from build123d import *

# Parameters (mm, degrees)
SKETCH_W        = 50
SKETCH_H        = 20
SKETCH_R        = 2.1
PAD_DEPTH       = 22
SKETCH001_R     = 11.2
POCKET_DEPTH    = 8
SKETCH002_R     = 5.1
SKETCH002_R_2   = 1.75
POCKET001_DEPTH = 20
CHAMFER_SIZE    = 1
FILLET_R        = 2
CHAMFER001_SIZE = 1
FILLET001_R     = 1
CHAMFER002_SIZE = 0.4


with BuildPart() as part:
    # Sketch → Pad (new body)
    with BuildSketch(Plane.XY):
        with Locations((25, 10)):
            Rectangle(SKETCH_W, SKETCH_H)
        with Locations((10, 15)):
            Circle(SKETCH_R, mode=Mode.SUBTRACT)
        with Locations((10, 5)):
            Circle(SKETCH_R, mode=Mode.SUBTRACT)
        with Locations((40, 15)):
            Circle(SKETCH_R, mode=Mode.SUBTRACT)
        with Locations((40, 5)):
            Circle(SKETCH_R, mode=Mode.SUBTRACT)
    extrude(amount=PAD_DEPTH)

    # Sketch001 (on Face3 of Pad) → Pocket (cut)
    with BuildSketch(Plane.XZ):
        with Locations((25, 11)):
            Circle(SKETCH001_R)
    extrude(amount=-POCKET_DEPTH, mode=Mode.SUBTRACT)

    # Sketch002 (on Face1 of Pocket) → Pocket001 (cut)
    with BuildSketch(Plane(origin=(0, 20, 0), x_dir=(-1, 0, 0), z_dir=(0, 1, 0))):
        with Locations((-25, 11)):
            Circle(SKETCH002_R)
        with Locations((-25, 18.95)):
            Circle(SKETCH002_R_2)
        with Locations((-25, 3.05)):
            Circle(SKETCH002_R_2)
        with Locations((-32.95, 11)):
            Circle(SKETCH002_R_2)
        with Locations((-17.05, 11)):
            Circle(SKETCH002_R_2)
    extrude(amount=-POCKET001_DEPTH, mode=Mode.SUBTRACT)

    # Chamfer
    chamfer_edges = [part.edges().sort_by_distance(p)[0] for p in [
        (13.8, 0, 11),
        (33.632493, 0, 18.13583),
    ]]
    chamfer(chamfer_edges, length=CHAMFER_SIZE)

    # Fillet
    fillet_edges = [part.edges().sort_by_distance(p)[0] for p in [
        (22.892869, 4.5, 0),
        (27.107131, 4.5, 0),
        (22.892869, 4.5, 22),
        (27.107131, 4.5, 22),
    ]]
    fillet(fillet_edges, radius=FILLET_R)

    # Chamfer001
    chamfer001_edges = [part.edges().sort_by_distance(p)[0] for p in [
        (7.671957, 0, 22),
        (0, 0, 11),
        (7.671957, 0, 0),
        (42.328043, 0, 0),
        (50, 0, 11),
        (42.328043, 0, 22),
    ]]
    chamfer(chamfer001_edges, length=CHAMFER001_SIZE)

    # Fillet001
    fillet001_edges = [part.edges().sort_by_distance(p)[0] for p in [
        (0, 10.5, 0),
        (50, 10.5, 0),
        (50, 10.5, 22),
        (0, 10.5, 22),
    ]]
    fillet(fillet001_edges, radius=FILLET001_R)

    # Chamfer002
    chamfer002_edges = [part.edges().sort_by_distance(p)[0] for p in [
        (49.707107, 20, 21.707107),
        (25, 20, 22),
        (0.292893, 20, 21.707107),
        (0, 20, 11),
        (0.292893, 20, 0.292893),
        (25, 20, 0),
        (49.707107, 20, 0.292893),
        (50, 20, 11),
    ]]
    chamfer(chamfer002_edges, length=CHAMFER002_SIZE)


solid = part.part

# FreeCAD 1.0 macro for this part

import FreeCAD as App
import Part
import Sketcher


def edges_at(feature, points):
    """Names of the edges that pass closest to the given points."""
    edges = feature.Shape.Edges
    near = lambda p: min(range(len(edges)), key=lambda i: edges[i].distToShape(Part.Vertex(*p))[0])
    return sorted({f"Edge{near(p) + 1}" for p in points})


def add_polygon(sketch, points):
    """Adds a closed chain of lines whose ends are joined by coincident constraints."""
    first, n = sketch.GeometryCount, len(points)
    for a, b in zip(points, points[1:] + points[:1]):
        sketch.addGeometry(Part.LineSegment(App.Vector(*a, 0), App.Vector(*b, 0)), False)
    for i in range(n):
        sketch.addConstraint(Sketcher.Constraint("Coincident", first + i, 2, first + (i + 1) % n, 1))

doc = App.newDocument("Part")
params = doc.addObject("Spreadsheet::Sheet", "Params")
for row, (alias, value) in enumerate([
    ("sketch1_diameter", "4.2 mm"),
    ("sketch1_width", "50 mm"),
    ("sketch1_height", "20 mm"),
    ("pad1_length", "22 mm"),
    ("sketch2_diameter", "22.4 mm"),
    ("pocket1_length", "8 mm"),
    ("sketch3_diameter", "10.2 mm"),
    ("sketch3_diameter2", "3.5 mm"),
    ("pocket2_length", "20 mm"),
    ("chamfer_size", "1 mm"),
    ("fillet_radius", "2 mm"),
    ("chamfer2_size", "1 mm"),
    ("fillet2_radius", "1 mm"),
    ("chamfer3_size", "0.4 mm"),
], start=1):
    params.set(f"A{row}", alias)
    params.set(f"B{row}", "=" + value)
    params.setAlias(f"B{row}", alias)

body = doc.addObject("PartDesign::Body", "Body")

sketch1 = body.newObject("Sketcher::SketchObject", "Sketch")
sketch1.AttachmentSupport = (doc.getObject("XY_Plane"), [""])
sketch1.MapMode = "FlatFace"
add_polygon(sketch1, [(0, 20), (0, 0), (50, 0), (50, 20)])
sketch1.addGeometry(Part.Circle(App.Vector(10, 5, 0), App.Vector(0, 0, 1), 2.1), False)
sketch1.addGeometry(Part.Circle(App.Vector(40, 5, 0), App.Vector(0, 0, 1), 2.1), False)
sketch1.addGeometry(Part.Circle(App.Vector(10, 15, 0), App.Vector(0, 0, 1), 2.1), False)
sketch1.addGeometry(Part.Circle(App.Vector(40, 15, 0), App.Vector(0, 0, 1), 2.1), False)
sketch1.addConstraint([
    Sketcher.Constraint("Vertical", 0),
    Sketcher.Constraint("Horizontal", 1),
    Sketcher.Constraint("Vertical", 2),
    Sketcher.Constraint("Horizontal", 3),
    Sketcher.Constraint("Coincident", 0, 2, -1, 1),
    Sketcher.Constraint("Equal", 4, 5),
    Sketcher.Constraint("Equal", 5, 6),
    Sketcher.Constraint("Equal", 6, 7),
    Sketcher.Constraint("Horizontal", 4, 3, 5, 3),
    Sketcher.Constraint("Horizontal", 6, 3, 7, 3),
    Sketcher.Constraint("Vertical", 4, 3, 6, 3),
    Sketcher.Constraint("Vertical", 5, 3, 7, 3),
    Sketcher.Constraint("Diameter", 4, 4.2),
    Sketcher.Constraint("DistanceX", 1, 1, 1, 2, 50.0),
    Sketcher.Constraint("DistanceY", 0, 2, 0, 1, 20.0),
    Sketcher.Constraint("DistanceX", -1, 1, 4, 3, 10.0),
    Sketcher.Constraint("DistanceY", -1, 1, 4, 3, 5.0),
    Sketcher.Constraint("DistanceX", -1, 1, 5, 3, 40.0),
    Sketcher.Constraint("DistanceY", -1, 1, 6, 3, 15.0),
])
sketch1.setExpression("Constraints[16]", "Params.sketch1_diameter")
sketch1.setExpression("Constraints[17]", "Params.sketch1_width")
sketch1.setExpression("Constraints[18]", "Params.sketch1_height")
pad1 = body.newObject("PartDesign::Pad", "Pad")
pad1.Profile = sketch1
pad1.setExpression("Length", "Params.pad1_length")

sketch2 = body.newObject("Sketcher::SketchObject", "Sketch001")
sketch2.AttachmentSupport = (doc.getObject("XZ_Plane"), [""])
sketch2.MapMode = "FlatFace"
sketch2.addGeometry(Part.Circle(App.Vector(25, 11, 0), App.Vector(0, 0, 1), 11), False)
sketch2.addConstraint([
    Sketcher.Constraint("Diameter", 0, 22.4),
    Sketcher.Constraint("DistanceX", -1, 1, 0, 3, 25.0),
    Sketcher.Constraint("DistanceY", -1, 1, 0, 3, 11.0),
])
sketch2.setExpression("Constraints[0]", "Params.sketch2_diameter")
pocket1 = body.newObject("PartDesign::Pocket", "Pocket")
pocket1.Profile = sketch2
pocket1.setExpression("Length", "Params.pocket1_length")

sketch3 = body.newObject("Sketcher::SketchObject", "Sketch002")
sketch3.AttachmentSupport = (doc.getObject("XZ_Plane"), [""])
sketch3.MapMode = "FlatFace"
sketch3.AttachmentOffset = App.Placement(App.Vector(0, 0, -20), App.Rotation())
sketch3.addGeometry([
    Part.Circle(App.Vector(25, 11, 0), App.Vector(0, 0, 1), 5.1),
    Part.Circle(App.Vector(25, 18.9, 0), App.Vector(0, 0, 1), 1.8),
    Part.Circle(App.Vector(25, 3, 0), App.Vector(0, 0, 1), 1.8),
    Part.Circle(App.Vector(33, 11, 0), App.Vector(0, 0, 1), 1.8),
    Part.Circle(App.Vector(17.1, 11, 0), App.Vector(0, 0, 1), 1.8),
], False)
sketch3.addConstraint([
    Sketcher.Constraint("Equal", 1, 2),
    Sketcher.Constraint("Equal", 2, 3),
    Sketcher.Constraint("Equal", 3, 4),
    Sketcher.Constraint("Horizontal", 0, 3, 3, 3),
    Sketcher.Constraint("Horizontal", 3, 3, 4, 3),
    Sketcher.Constraint("Vertical", 0, 3, 1, 3),
    Sketcher.Constraint("Vertical", 1, 3, 2, 3),
    Sketcher.Constraint("Diameter", 0, 10.2),
    Sketcher.Constraint("Diameter", 1, 3.5),
    Sketcher.Constraint("DistanceX", -1, 1, 0, 3, 25.0),
    Sketcher.Constraint("DistanceY", -1, 1, 0, 3, 11.0),
    Sketcher.Constraint("DistanceY", 2, 3, 1, 3, 15.9),
    Sketcher.Constraint("DistanceX", 4, 3, 3, 3, 15.9),
    Sketcher.Constraint("DistanceY", -1, 1, 1, 3, 18.95),
    Sketcher.Constraint("DistanceX", -1, 1, 3, 3, 32.95),
])
sketch3.setExpression("Constraints[7]", "Params.sketch3_diameter")
sketch3.setExpression("Constraints[8]", "Params.sketch3_diameter2")
pocket2 = body.newObject("PartDesign::Pocket", "Pocket001")
pocket2.Profile = sketch3
pocket2.setExpression("Length", "Params.pocket2_length")
pocket2.Reversed = True
doc.recompute()

chamfer = body.newObject("PartDesign::Chamfer", "Chamfer")
chamfer.Base = (pocket2, edges_at(pocket2, [(13.8, 0, 11), (36.2, 0, 11)]))
chamfer.setExpression("Size", "Params.chamfer_size")
doc.recompute()

fillet = body.newObject("PartDesign::Fillet", "Fillet")
fillet.Base = (chamfer, edges_at(chamfer, [
    (22.893, 4.5, 0),
    (27.107, 4.5, 0),
    (22.893, 4.5, 22),
    (27.107, 4.5, 22),
]))
fillet.setExpression("Radius", "Params.fillet_radius")
doc.recompute()

chamfer2 = body.newObject("PartDesign::Chamfer", "Chamfer001")
chamfer2.Base = (fillet, edges_at(fillet, [
    (7.672, 0, 22),
    (0, 0, 11),
    (7.672, 0, 0),
    (42.328, 0, 0),
    (50, 0, 11),
    (42.328, 0, 22),
]))
chamfer2.setExpression("Size", "Params.chamfer2_size")
doc.recompute()

fillet2 = body.newObject("PartDesign::Fillet", "Fillet001")
fillet2.Base = (chamfer2, edges_at(chamfer2, [
    (0, 10.5, 0),
    (50, 10.5, 0),
    (50, 10.5, 22),
    (0, 10.5, 22),
]))
fillet2.setExpression("Radius", "Params.fillet2_radius")
doc.recompute()

chamfer3 = body.newObject("PartDesign::Chamfer", "Chamfer002")
chamfer3.Base = (fillet2, edges_at(fillet2, [
    (49.707, 20, 21.707),
    (25, 20, 22),
    (0.293, 20, 21.707),
    (0, 20, 11),
    (0.293, 20, 0.293),
    (25, 20, 0),
    (49.707, 20, 0.293),
    (50, 20, 11),
]))
chamfer3.setExpression("Size", "Params.chamfer3_size")

doc.recompute()
